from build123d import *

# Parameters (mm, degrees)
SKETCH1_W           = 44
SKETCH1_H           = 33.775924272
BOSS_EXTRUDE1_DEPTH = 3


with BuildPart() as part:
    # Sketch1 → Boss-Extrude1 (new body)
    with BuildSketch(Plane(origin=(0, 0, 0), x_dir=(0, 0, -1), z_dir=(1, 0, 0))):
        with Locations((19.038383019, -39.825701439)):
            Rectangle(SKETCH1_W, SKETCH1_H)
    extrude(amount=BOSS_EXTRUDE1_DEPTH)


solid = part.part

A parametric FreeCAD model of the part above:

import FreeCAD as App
import Part
import Sketcher
Q = App.Units.Quantity

doc = App.newDocument("Part")
body = doc.addObject("PartDesign::Body", "Body")

sketch1 = body.newObject("Sketcher::SketchObject", "Sketch")
sketch1.AttachmentSupport = (doc.getObject("YZ_Plane"), [""])
sketch1.MapMode = "FlatFace"
sketch1.addGeometry([
    Part.LineSegment(App.Vector(-23, 3, 0), App.Vector(-57, 3, 0)),
    Part.LineSegment(App.Vector(-57, 3, 0), App.Vector(-57, -41, 0)),
    Part.LineSegment(App.Vector(-57, -41, 0), App.Vector(-23, -41, 0)),
    Part.LineSegment(App.Vector(-23, -41, 0), App.Vector(-23, 3, 0)),
], False)
sketch1.addConstraint([
    Sketcher.Constraint("Coincident", 0, 2, 1, 1),
    Sketcher.Constraint("Coincident", 1, 2, 2, 1),
    Sketcher.Constraint("Coincident", 2, 2, 3, 1),
    Sketcher.Constraint("Coincident", 3, 2, 0, 1),
    Sketcher.Constraint("Horizontal", 0),
    Sketcher.Constraint("Vertical", 1),
    Sketcher.Constraint("Horizontal", 2),
    Sketcher.Constraint("Vertical", 3),
    Sketcher.Constraint("DistanceY", 1, 2, 1, 1, Q("44 mm")),
    Sketcher.Constraint("DistanceX", 0, 2, 0, 1, Q("33.775924 mm")),
    Sketcher.Constraint("DistanceX", 2, 2, -1, 1, Q("22.937739 mm")),
    Sketcher.Constraint("DistanceY", -1, 1, 0, 2, Q("2.961617 mm")),
])
pad1 = body.newObject("PartDesign::Pad", "Pad")
pad1.Profile = sketch1
pad1.Length = 3

doc.recompute()
